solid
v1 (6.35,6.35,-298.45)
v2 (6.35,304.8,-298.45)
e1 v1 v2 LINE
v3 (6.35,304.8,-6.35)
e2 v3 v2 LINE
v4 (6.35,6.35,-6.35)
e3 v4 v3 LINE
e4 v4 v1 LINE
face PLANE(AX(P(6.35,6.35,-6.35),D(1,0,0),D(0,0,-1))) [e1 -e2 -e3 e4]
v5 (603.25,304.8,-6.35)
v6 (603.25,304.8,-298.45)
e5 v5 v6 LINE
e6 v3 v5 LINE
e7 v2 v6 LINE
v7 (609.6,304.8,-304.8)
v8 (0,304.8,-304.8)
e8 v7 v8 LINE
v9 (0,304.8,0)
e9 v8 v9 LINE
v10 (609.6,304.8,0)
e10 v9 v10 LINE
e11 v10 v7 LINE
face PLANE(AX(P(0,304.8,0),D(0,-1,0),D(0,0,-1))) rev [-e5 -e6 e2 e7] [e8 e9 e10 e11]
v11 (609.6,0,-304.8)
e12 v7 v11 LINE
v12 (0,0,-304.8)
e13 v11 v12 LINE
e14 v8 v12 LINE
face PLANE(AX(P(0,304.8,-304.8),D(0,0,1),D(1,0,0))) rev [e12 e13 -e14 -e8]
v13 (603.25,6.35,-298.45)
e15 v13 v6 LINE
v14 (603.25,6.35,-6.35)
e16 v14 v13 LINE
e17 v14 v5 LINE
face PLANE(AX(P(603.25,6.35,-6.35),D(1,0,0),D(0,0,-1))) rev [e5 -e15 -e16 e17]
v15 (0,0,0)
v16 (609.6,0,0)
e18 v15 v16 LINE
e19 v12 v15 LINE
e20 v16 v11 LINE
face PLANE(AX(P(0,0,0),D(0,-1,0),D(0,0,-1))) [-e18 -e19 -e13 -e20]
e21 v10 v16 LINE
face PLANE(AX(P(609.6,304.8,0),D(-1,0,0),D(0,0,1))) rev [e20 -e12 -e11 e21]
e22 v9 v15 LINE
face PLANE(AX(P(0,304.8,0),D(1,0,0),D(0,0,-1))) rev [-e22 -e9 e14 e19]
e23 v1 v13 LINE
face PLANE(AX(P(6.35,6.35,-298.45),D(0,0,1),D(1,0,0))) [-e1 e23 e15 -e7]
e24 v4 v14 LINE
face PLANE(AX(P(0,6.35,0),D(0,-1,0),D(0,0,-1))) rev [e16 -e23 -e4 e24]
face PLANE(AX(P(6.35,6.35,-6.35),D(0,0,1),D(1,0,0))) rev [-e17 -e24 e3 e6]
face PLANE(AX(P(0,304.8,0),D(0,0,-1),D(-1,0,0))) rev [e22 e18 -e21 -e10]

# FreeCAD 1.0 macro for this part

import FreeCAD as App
import Part
import Sketcher
from FreeCAD import Vector
Q = App.Units.Quantity


def add_polygon(sketch, points):
    """Adds a closed chain of lines whose ends are joined by coincident constraints."""
    first, n = sketch.GeometryCount, len(points)
    for a, b in zip(points, points[1:] + points[:1]):
        sketch.addGeometry(Part.LineSegment(App.Vector(*a, 0), App.Vector(*b, 0)), False)
    for i in range(n):
        sketch.addConstraint(Sketcher.Constraint("Coincident", first + i, 2, first + (i + 1) % n, 1))

doc = App.newDocument("Part")
body = doc.addObject("PartDesign::Body", "Body")

# Sketch on XZ plane
sketch1 = body.newObject("Sketcher::SketchObject", "Sketch")
sketch1.AttachmentSupport = (doc.getObject("XZ_Plane"), [""])
sketch1.MapMode = "FlatFace"
add_polygon(sketch1, [(0, -305), (0, 0), (610, 0), (610, -305)])  # lines 0-3
sketch1.addConstraint(Sketcher.Constraint("Vertical", 0))
sketch1.addConstraint(Sketcher.Constraint("Horizontal", 1))
sketch1.addConstraint(Sketcher.Constraint("Vertical", 2))
sketch1.addConstraint(Sketcher.Constraint("Horizontal", 3))
sketch1.addConstraint(Sketcher.Constraint("Coincident", 0, 2, -1, 1))
sketch1.addConstraint(Sketcher.Constraint("DistanceX", 1, 1, 1, 2, Q("24 in")))
sketch1.addConstraint(Sketcher.Constraint("DistanceY", 0, 1, 0, 2, Q("12 in")))
pad1 = body.newObject("PartDesign::Pad", "Pad")
pad1.Profile = sketch1
pad1.Length = Q("12 in")
pad1.Reversed = True

# Sketch on XZ plane
sketch2 = body.newObject("Sketcher::SketchObject", "Sketch001")
sketch2.AttachmentSupport = (doc.getObject("XZ_Plane"), [""])
sketch2.MapMode = "FlatFace"
sketch2.AttachmentOffset = App.Placement(Vector(0, 0, -12 * 25.4), App.Rotation())
add_polygon(sketch2, [(6, -298), (6, -6), (603, -6), (603, -298)])  # lines 0-3
sketch2.addConstraint(Sketcher.Constraint("Vertical", 0))
sketch2.addConstraint(Sketcher.Constraint("Horizontal", 1))
sketch2.addConstraint(Sketcher.Constraint("Vertical", 2))
sketch2.addConstraint(Sketcher.Constraint("Horizontal", 3))
sketch2.addConstraint(Sketcher.Constraint("DistanceX", 1, 1, 1, 2, Q("23.5 in")))
sketch2.addConstraint(Sketcher.Constraint("DistanceY", 0, 1, 0, 2, Q("11.5 in")))
sketch2.addConstraint(Sketcher.Constraint("DistanceX", -1, 1, 0, 2, Q("0.25 in")))
sketch2.addConstraint(Sketcher.Constraint("DistanceY", 0, 2, -1, 1, Q("0.25 in")))
pocket1 = body.newObject("PartDesign::Pocket", "Pocket")
pocket1.Profile = sketch2
pocket1.Length = Q("11.75 in")
pocket1.Reversed = True

doc.recompute()
